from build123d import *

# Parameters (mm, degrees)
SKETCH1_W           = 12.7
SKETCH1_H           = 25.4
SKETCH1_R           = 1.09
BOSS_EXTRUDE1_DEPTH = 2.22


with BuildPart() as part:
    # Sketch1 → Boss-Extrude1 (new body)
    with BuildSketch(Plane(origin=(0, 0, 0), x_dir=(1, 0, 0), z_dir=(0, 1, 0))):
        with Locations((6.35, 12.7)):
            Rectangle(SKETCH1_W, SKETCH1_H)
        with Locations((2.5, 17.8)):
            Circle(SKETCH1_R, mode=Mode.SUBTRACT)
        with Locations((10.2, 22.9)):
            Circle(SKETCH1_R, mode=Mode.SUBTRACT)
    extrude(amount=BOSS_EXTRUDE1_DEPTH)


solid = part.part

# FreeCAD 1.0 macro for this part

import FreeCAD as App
import Part
import Sketcher

V = App.Vector
Q = App.Units.Quantity


def add_polygon(sketch, points):
    """Adds a closed chain of lines whose ends are joined by coincident constraints."""
    first, n = sketch.GeometryCount, len(points)
    for a, b in zip(points, points[1:] + points[:1]):
        sketch.addGeometry(Part.LineSegment(App.Vector(*a, 0), App.Vector(*b, 0)), False)
    for i in range(n):
        sketch.addConstraint(Sketcher.Constraint("Coincident", first + i, 2, first + (i + 1) % n, 1))

doc = App.newDocument("Part")
body = doc.addObject("PartDesign::Body", "Body")

sketch1 = body.newObject("Sketcher::SketchObject", "Sketch")
sketch1.AttachmentSupport = (doc.getObject("XZ_Plane"), [""])
sketch1.MapMode = "FlatFace"
add_polygon(sketch1, [(0, -25.4), (0, 0), (12.7, 0), (12.7, -25.4)])
sketch1.addGeometry(Part.Circle(V(2.5, -17.8, 0), V(0, 0, 1), 1.1), False)
sketch1.addGeometry(Part.Circle(V(10.2, -22.9, 0), V(0, 0, 1), 1.1), False)
sketch1.addConstraint([
    Sketcher.Constraint("Vertical", 0),
    Sketcher.Constraint("Horizontal", 1),
    Sketcher.Constraint("Vertical", 2),
    Sketcher.Constraint("Horizontal", 3),
    Sketcher.Constraint("Coincident", 0, 2, -1, 1),
    Sketcher.Constraint("Equal", 4, 5),
    Sketcher.Constraint("DistanceY", 0, 1, 0, 2, Q("1 in")),
    Sketcher.Constraint("DistanceX", 1, 1, 1, 2, Q("0.5 in")),
    Sketcher.Constraint("Diameter", 4, 2.18),
    Sketcher.Constraint("DistanceX", -1, 1, 4, 3, 2.5),
    Sketcher.Constraint("DistanceY", 4, 3, -1, 1, 17.8),
    Sketcher.Constraint("DistanceX", -1, 1, 5, 3, 10.2),
    Sketcher.Constraint("DistanceY", 5, 3, -1, 1, 22.9),
])
pad1 = body.newObject("PartDesign::Pad", "Pad")
pad1.Profile = sketch1
pad1.Length = 2.22
pad1.Reversed = True

doc.recompute()
